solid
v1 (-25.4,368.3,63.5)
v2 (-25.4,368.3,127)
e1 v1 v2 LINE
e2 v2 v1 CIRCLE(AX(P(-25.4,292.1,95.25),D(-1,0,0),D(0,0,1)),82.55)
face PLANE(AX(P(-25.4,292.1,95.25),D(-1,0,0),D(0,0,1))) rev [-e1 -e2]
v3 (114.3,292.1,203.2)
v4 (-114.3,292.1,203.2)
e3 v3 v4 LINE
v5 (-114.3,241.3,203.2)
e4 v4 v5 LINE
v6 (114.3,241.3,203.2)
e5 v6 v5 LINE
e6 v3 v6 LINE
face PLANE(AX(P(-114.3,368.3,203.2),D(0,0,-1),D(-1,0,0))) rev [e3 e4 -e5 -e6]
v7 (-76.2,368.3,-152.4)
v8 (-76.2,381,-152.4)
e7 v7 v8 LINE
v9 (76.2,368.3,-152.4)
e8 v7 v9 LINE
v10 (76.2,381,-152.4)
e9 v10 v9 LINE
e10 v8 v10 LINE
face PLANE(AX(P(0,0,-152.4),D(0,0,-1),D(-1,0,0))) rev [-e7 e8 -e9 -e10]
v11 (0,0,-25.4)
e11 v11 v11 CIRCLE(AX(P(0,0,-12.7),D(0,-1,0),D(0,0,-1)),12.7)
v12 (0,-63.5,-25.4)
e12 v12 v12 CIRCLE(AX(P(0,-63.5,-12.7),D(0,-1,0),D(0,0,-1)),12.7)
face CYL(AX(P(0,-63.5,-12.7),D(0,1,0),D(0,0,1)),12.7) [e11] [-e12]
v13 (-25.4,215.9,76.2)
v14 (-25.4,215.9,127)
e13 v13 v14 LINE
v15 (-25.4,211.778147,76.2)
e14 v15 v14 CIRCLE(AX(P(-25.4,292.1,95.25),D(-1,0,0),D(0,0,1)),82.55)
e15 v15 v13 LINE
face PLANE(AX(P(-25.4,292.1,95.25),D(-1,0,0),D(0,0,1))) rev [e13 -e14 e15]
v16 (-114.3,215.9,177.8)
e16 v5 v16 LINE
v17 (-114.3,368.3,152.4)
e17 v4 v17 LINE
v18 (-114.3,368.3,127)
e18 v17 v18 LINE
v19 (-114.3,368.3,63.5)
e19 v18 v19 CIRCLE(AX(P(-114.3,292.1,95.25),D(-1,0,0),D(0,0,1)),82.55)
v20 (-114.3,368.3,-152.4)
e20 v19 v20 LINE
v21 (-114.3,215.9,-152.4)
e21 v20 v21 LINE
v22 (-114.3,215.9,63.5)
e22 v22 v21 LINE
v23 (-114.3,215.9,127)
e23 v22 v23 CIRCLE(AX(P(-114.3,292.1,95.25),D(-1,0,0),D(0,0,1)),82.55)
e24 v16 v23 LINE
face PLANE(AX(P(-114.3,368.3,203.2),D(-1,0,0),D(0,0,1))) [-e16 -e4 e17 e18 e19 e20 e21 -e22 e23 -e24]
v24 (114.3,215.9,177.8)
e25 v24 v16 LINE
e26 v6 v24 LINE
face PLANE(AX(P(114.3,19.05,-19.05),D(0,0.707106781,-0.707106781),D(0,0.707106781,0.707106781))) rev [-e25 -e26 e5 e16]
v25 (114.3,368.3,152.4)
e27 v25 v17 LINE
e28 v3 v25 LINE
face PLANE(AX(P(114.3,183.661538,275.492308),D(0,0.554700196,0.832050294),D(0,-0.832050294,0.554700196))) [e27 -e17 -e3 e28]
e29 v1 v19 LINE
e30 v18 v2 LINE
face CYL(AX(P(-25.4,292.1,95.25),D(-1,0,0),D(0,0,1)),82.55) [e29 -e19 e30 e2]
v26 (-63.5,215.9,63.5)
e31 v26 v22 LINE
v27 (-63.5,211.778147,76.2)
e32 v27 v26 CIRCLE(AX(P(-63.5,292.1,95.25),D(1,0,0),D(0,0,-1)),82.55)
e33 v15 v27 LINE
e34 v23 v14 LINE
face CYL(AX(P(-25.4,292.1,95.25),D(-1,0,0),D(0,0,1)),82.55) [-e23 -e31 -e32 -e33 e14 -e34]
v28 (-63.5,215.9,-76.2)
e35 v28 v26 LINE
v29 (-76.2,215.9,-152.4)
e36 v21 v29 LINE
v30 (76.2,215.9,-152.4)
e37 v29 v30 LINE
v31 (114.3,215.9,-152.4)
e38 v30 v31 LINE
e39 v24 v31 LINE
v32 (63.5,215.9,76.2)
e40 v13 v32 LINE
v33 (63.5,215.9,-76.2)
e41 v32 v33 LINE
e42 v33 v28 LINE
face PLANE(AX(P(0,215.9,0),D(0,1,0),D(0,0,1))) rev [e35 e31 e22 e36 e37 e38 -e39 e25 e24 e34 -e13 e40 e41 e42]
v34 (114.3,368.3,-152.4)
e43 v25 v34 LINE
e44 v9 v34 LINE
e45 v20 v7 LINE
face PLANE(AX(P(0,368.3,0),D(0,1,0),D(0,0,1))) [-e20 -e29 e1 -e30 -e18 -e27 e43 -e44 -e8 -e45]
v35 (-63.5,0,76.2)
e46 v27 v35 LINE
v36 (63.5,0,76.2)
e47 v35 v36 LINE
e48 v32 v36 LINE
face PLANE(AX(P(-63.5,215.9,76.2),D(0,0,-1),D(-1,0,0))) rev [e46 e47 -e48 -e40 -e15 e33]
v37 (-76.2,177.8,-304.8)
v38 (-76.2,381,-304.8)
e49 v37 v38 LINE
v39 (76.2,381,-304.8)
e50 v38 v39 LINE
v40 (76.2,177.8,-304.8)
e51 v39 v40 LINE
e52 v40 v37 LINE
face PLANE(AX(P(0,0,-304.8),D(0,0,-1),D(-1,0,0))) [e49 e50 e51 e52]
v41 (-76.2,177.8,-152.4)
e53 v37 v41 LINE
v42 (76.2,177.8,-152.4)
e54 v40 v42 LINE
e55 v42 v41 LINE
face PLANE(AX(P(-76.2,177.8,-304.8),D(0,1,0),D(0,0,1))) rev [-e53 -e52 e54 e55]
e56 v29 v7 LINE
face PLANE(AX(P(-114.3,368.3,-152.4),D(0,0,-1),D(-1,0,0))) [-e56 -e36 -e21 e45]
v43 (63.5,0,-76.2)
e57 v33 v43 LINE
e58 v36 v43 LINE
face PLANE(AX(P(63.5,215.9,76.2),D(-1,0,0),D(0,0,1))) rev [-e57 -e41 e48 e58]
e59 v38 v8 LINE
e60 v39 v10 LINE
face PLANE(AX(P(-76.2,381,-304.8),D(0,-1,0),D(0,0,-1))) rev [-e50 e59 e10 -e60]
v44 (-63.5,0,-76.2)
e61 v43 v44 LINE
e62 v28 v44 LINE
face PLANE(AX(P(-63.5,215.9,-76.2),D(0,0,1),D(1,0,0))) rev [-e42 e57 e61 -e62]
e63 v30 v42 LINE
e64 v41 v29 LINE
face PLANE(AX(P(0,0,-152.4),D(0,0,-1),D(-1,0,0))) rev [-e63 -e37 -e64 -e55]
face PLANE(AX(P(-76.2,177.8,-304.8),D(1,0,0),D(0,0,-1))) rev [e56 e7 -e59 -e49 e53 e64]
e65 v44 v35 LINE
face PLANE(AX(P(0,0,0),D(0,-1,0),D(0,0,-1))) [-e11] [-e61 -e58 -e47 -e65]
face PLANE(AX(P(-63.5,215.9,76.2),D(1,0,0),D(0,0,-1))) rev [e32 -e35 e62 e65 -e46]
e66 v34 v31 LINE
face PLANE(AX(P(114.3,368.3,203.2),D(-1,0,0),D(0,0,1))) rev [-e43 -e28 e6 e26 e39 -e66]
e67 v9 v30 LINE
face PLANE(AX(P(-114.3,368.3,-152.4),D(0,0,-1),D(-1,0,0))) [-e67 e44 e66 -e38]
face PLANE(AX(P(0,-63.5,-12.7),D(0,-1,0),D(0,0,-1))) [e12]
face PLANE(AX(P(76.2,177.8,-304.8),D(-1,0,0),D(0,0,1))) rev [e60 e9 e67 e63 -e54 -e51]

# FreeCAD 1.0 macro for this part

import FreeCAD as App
import Part
import Sketcher

V = App.Vector
Q = App.Units.Quantity


def add_polygon(sketch, points):
    """Adds a closed chain of lines whose ends are joined by coincident constraints."""
    first, n = sketch.GeometryCount, len(points)
    for a, b in zip(points, points[1:] + points[:1]):
        sketch.addGeometry(Part.LineSegment(App.Vector(*a, 0), App.Vector(*b, 0)), False)
    for i in range(n):
        sketch.addConstraint(Sketcher.Constraint("Coincident", first + i, 2, first + (i + 1) % n, 1))

doc = App.newDocument("Part")
body = doc.addObject("PartDesign::Body", "Body")

# Sketch on XZ plane
sketch1 = body.newObject("Sketcher::SketchObject", "Sketch")
sketch1.AttachmentSupport = (doc.getObject("XZ_Plane"), [""])
sketch1.MapMode = "FlatFace"
add_polygon(sketch1, [(-64, -76), (-64, 76), (64, 76), (64, -76)])  # lines 0-3
sketch1.addConstraint([
    Sketcher.Constraint("Vertical", 0),
    Sketcher.Constraint("Horizontal", 1),
    Sketcher.Constraint("Vertical", 2),
    Sketcher.Constraint("Horizontal", 3),
    Sketcher.Constraint("Symmetric", 0, 2, 2, 2, -1, 1),
    Sketcher.Constraint("DistanceX", 1, 1, 1, 2, Q("5 in")),
    Sketcher.Constraint("DistanceY", 0, 1, 0, 2, Q("6 in")),
])
pad1 = body.newObject("PartDesign::Pad", "Pad")
pad1.Profile = sketch1
pad1.Length = Q("8.5 in")
pad1.Reversed = True

# Sketch on XZ plane
sketch2 = body.newObject("Sketcher::SketchObject", "Sketch001")
sketch2.AttachmentSupport = (doc.getObject("XZ_Plane"), [""])
sketch2.MapMode = "FlatFace"
sketch2.AttachmentOffset = App.Placement(V(0, 0, -8.5 * 25.4), App.Rotation())
add_polygon(sketch2, [(-114, -152), (-114, 203), (114, 203), (114, -152)])  # lines 0-3
sketch2.addConstraint([
    Sketcher.Constraint("Vertical", 0),
    Sketcher.Constraint("Horizontal", 1),
    Sketcher.Constraint("Vertical", 2),
    Sketcher.Constraint("Horizontal", 3),
    Sketcher.Constraint("DistanceX", 1, 1, 1, 2, Q("9 in")),
    Sketcher.Constraint("DistanceY", 0, 1, 0, 2, Q("14 in")),
    Sketcher.Constraint("DistanceY", -1, 1, 0, 2, Q("8 in")),
    Sketcher.Constraint("DistanceX", 0, 2, -1, 1, Q("4.5 in")),
])
pad2 = body.newObject("PartDesign::Pad", "Pad001")
pad2.Profile = sketch2
pad2.Length = Q("6 in")
pad2.Reversed = True

# Sketch on YZ plane
sketch3 = body.newObject("Sketcher::SketchObject", "Sketch002")
sketch3.AttachmentSupport = (doc.getObject("YZ_Plane"), [""])
sketch3.MapMode = "FlatFace"
sketch3.AttachmentOffset = App.Placement(V(0, 0, -4.5 * 25.4), App.Rotation())
sketch3.addGeometry(Part.Circle(V(292, 95, 0), V(0, 0, 1), 83), False)
sketch3.addConstraint([
    Sketcher.Constraint("Diameter", 0, Q("6.5 in")),
    Sketcher.Constraint("DistanceX", -1, 1, 0, 3, Q("11.5 in")),
    Sketcher.Constraint("DistanceY", -1, 1, 0, 3, Q("3.75 in")),
])
pad3 = body.newObject("PartDesign::Pad", "Pad002")
pad3.Profile = sketch3
pad3.Length = Q("3.5 in")

# Sketch on YZ plane
sketch4 = body.newObject("Sketcher::SketchObject", "Sketch003")
sketch4.AttachmentSupport = (doc.getObject("YZ_Plane"), [""])
sketch4.MapMode = "FlatFace"
sketch4.AttachmentOffset = App.Placement(V(0, 0, -4.5 * 25.4), App.Rotation())
add_polygon(sketch4, [(368, 152), (292, 203), (368, 203)])  # lines 0-2
add_polygon(sketch4, [(216, 203), (241, 203), (216, 178)])  # lines 3-5
sketch4.addConstraint([
    Sketcher.Constraint("Horizontal", 1),
    Sketcher.Constraint("Vertical", 2),
    Sketcher.Constraint("Horizontal", 3),
    Sketcher.Constraint("Vertical", 5),
    Sketcher.Constraint("Horizontal", 1, 2, 3, 2),
    Sketcher.Constraint("Equal", 3, 5),
    Sketcher.Constraint("DistanceX", 1, 1, 1, 2, Q("3 in")),
    Sketcher.Constraint("DistanceX", 3, 1, 3, 2, Q("1 in")),
    Sketcher.Constraint("DistanceY", 2, 2, 2, 1, Q("2 in")),
    Sketcher.Constraint("DistanceY", -1, 1, 0, 2, Q("8 in")),
    Sketcher.Constraint("DistanceX", 3, 2, 0, 2, Q("2 in")),
    Sketcher.Constraint("DistanceX", -1, 1, 0, 2, Q("11.5 in")),
])
pocket1 = body.newObject("PartDesign::Pocket", "Pocket")
pocket1.Profile = sketch4
pocket1.Type = "ThroughAll"
pocket1.Reversed = True

# Sketch on XY plane
sketch5 = body.newObject("Sketcher::SketchObject", "Sketch004")
sketch5.AttachmentSupport = (doc.getObject("XY_Plane"), [""])
sketch5.MapMode = "FlatFace"
sketch5.AttachmentOffset = App.Placement(V(0, 0, -6 * 25.4), App.Rotation())
add_polygon(sketch5, [(76, 381), (76, 178), (-76, 178), (-76, 381)])  # lines 0-3
sketch5.addConstraint([
    Sketcher.Constraint("Vertical", 0),
    Sketcher.Constraint("Horizontal", 1),
    Sketcher.Constraint("Vertical", 2),
    Sketcher.Constraint("Horizontal", 3),
    Sketcher.Constraint("DistanceX", 1, 2, 1, 1, Q("6 in")),
    Sketcher.Constraint("DistanceY", 0, 2, 0, 1, Q("8 in")),
    Sketcher.Constraint("DistanceX", -1, 1, 0, 2, Q("3 in")),
    Sketcher.Constraint("DistanceY", -1, 1, 0, 2, Q("7 in")),
])
pad4 = body.newObject("PartDesign::Pad", "Pad003")
pad4.Profile = sketch5
pad4.Length = Q("6 in")
pad4.Reversed = True

# Sketch on XZ plane
sketch6 = body.newObject("Sketcher::SketchObject", "Sketch005")
sketch6.AttachmentSupport = (doc.getObject("XZ_Plane"), [""])
sketch6.MapMode = "FlatFace"
sketch6.addGeometry(Part.Circle(V(0, -13, 0), V(0, 0, 1), 13), False)
sketch6.addConstraint([
    Sketcher.Constraint("PointOnObject", 0, 3, -2),
    Sketcher.Constraint("Diameter", 0, Q("1 in")),
    Sketcher.Constraint("DistanceY", 0, 3, -1, 1, Q("0.5 in")),
])
pad5 = body.newObject("PartDesign::Pad", "Pad004")
pad5.Profile = sketch6
pad5.Length = Q("2.5 in")

doc.recompute()
